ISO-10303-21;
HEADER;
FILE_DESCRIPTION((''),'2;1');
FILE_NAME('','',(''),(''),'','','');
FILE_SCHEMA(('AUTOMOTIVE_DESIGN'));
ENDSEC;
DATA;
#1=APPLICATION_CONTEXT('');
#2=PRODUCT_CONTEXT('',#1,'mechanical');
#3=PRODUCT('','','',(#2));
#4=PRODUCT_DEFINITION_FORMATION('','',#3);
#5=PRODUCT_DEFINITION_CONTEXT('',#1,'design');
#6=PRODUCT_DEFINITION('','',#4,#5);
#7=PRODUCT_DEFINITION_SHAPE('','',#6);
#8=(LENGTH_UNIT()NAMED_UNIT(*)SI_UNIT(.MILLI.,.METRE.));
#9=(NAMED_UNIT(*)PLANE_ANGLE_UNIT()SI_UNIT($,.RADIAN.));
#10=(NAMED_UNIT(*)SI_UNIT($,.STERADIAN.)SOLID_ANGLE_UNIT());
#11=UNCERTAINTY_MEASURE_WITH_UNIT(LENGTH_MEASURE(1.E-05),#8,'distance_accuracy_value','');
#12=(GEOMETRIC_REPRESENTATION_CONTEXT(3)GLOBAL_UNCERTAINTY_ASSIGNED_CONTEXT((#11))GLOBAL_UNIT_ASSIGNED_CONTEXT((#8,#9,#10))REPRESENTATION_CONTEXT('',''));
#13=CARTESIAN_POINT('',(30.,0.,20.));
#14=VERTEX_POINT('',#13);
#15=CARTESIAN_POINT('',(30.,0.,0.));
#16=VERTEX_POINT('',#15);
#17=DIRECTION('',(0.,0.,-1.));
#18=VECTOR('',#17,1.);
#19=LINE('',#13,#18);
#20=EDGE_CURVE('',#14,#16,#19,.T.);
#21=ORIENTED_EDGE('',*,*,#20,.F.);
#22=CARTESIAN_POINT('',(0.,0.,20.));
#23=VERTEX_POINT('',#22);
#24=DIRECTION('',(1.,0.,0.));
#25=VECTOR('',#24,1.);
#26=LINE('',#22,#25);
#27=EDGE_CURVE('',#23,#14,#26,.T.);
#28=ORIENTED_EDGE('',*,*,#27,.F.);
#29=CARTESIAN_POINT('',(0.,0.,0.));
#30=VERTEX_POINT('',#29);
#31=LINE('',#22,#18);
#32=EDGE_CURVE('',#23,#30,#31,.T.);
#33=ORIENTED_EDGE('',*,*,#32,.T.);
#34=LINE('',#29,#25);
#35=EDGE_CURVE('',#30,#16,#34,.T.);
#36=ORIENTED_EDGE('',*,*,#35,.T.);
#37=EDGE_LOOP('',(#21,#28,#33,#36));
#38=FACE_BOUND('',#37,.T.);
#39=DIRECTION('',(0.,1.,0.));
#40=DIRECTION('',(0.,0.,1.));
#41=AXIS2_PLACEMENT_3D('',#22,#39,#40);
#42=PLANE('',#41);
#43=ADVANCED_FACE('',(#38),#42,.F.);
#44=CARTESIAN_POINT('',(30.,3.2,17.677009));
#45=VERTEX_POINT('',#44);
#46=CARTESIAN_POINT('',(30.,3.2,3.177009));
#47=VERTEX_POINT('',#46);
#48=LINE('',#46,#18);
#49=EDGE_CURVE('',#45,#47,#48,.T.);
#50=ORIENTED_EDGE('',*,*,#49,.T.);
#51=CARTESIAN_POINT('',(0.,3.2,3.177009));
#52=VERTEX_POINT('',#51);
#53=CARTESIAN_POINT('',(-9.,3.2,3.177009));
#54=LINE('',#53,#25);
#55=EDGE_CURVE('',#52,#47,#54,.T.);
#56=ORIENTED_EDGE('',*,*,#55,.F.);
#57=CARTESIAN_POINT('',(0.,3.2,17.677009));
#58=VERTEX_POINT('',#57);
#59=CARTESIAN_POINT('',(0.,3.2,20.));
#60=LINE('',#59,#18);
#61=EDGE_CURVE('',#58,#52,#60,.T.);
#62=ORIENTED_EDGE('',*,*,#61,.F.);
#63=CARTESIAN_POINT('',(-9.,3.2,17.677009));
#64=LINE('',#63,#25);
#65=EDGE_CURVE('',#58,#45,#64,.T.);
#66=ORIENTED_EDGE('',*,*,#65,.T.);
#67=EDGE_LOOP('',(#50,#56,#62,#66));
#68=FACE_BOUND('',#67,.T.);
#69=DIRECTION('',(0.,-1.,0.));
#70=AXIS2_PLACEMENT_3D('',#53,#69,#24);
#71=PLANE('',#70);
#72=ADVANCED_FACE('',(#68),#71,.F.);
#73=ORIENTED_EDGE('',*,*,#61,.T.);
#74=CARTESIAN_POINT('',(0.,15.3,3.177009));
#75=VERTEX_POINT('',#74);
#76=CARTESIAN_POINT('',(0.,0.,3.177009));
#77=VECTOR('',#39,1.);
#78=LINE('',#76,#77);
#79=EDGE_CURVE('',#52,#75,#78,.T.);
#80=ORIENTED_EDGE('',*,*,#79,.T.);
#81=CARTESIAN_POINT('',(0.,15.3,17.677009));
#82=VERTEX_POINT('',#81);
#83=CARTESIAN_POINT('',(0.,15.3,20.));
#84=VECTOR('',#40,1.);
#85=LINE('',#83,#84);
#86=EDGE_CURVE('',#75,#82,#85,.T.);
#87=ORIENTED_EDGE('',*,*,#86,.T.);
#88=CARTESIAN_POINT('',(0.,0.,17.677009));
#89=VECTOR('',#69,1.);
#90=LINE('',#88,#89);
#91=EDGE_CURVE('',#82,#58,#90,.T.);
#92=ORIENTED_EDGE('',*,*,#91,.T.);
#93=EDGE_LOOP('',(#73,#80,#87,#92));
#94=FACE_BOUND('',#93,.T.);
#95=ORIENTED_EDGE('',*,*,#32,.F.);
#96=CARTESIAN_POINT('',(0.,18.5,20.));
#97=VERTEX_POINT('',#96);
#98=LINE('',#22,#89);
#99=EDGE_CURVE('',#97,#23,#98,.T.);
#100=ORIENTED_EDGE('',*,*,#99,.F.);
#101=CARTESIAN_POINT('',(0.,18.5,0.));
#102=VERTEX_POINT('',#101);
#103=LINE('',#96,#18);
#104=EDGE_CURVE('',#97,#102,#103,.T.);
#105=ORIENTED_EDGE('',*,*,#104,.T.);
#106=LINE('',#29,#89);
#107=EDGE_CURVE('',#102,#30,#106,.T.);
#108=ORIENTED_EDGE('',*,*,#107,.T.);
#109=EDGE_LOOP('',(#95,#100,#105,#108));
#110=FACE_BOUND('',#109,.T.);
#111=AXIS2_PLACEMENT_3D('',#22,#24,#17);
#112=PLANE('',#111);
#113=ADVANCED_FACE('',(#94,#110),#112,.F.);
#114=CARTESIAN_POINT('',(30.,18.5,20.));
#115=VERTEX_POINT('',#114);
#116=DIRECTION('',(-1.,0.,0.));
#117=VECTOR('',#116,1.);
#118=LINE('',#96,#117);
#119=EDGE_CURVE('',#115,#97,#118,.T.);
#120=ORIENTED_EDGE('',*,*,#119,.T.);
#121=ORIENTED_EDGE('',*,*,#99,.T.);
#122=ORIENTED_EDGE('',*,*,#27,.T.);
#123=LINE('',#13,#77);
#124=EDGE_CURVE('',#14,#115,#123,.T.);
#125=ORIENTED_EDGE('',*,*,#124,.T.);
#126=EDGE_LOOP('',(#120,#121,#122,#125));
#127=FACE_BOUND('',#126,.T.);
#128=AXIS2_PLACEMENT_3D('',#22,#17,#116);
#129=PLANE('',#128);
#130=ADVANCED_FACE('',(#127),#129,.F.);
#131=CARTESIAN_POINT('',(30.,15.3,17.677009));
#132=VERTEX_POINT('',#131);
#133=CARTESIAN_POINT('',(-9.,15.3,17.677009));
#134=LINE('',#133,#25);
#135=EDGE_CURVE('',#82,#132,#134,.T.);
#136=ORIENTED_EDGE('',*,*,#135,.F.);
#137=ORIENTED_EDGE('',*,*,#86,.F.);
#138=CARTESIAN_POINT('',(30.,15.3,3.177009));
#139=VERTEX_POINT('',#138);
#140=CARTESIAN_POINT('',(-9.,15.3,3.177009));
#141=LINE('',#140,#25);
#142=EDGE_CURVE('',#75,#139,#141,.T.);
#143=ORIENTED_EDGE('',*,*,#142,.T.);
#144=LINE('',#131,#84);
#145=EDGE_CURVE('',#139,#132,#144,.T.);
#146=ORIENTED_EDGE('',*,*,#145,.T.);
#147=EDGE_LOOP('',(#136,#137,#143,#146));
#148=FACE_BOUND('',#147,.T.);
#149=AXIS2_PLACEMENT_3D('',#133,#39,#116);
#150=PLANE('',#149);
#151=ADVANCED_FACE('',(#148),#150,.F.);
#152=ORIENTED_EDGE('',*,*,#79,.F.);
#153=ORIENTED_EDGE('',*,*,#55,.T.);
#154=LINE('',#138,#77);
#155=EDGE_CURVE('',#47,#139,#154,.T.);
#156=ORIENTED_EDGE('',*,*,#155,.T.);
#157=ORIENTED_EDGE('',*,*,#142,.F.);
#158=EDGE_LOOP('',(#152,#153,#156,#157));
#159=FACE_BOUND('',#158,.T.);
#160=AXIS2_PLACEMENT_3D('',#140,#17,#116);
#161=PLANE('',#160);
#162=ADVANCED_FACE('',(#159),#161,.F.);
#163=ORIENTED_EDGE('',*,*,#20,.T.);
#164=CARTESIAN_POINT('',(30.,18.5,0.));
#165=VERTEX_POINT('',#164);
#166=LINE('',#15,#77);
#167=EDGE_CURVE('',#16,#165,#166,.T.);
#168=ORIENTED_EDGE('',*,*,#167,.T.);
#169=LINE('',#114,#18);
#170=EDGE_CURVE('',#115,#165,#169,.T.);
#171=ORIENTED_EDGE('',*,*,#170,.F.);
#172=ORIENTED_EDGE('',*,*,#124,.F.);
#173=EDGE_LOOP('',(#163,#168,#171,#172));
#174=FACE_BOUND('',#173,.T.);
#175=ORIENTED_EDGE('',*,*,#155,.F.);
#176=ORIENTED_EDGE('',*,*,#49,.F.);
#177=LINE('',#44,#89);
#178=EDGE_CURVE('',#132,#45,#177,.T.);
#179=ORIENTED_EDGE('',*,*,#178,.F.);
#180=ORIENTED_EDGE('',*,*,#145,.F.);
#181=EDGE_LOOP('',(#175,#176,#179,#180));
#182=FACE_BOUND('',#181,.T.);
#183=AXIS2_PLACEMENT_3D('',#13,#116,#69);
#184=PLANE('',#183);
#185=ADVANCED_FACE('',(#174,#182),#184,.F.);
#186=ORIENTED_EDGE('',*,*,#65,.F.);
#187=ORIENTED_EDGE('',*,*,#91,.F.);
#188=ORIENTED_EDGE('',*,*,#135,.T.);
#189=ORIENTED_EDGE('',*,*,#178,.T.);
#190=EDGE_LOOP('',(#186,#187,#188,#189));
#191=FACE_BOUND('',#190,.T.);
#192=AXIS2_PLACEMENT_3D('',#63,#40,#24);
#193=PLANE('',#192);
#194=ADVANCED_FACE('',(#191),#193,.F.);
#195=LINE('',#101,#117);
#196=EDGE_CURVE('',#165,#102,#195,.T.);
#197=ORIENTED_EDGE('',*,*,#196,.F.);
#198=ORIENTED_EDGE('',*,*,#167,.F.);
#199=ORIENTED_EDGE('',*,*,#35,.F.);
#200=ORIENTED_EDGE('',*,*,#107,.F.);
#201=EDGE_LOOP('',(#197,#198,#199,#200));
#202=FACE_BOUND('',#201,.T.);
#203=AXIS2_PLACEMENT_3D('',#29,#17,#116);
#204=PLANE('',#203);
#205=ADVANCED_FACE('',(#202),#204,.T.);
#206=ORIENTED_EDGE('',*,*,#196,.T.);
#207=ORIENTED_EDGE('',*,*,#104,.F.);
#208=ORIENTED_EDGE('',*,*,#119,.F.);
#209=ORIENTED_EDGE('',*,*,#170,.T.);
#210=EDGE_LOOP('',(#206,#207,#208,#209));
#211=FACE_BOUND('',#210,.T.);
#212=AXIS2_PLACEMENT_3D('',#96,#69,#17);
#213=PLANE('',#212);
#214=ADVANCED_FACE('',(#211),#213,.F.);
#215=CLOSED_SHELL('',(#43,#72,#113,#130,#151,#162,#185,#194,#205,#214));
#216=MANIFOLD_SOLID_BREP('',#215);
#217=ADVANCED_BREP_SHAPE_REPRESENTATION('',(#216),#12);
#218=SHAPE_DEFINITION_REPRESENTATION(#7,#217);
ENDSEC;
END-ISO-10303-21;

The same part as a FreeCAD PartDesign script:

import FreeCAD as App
import Part
import Sketcher

V = App.Vector

doc = App.newDocument("Part")
params = doc.addObject("Spreadsheet::Sheet", "Params")
for row, (alias, value) in enumerate([
    ("sketch1_width", "30 mm"),
    ("sketch1_height", "18.5 mm"),
    ("pad1_length", "20 mm"),
    ("sketch2_width", "12.1 mm"),
    ("sketch2_height", "14.5 mm"),
    ("pocket1_length", "39 mm"),
], start=1):
    params.set(f"A{row}", alias)
    params.set(f"B{row}", "=" + value)
    params.setAlias(f"B{row}", alias)

body = doc.addObject("PartDesign::Body", "Body")

sketch1 = doc.addObject("Sketcher::SketchObject", "Sketch")
body.addObject(sketch1)
sketch1.AttachmentSupport = (doc.XY_Plane, [""])
sketch1.MapMode = "FlatFace"
sketch1.addGeometry(Part.LineSegment(V(0, 18.5, 0), V(0, 0, 0)), False)
sketch1.addGeometry(Part.LineSegment(V(0, 0, 0), V(30, 0, 0)), False)
sketch1.addGeometry(Part.LineSegment(V(30, 0, 0), V(30, 18.5, 0)), False)
sketch1.addGeometry(Part.LineSegment(V(30, 18.5, 0), V(0, 18.5, 0)), False)
sketch1.addConstraint(Sketcher.Constraint("Coincident", 0, 2, 1, 1))
sketch1.addConstraint(Sketcher.Constraint("Coincident", 1, 2, 2, 1))
sketch1.addConstraint(Sketcher.Constraint("Coincident", 2, 2, 3, 1))
sketch1.addConstraint(Sketcher.Constraint("Coincident", 3, 2, 0, 1))
sketch1.addConstraint(Sketcher.Constraint("Vertical", 0))
sketch1.addConstraint(Sketcher.Constraint("Horizontal", 1))
sketch1.addConstraint(Sketcher.Constraint("Vertical", 2))
sketch1.addConstraint(Sketcher.Constraint("Horizontal", 3))
sketch1.addConstraint(Sketcher.Constraint("Coincident", 0, 2, -1, 1))
sketch1.addConstraint(Sketcher.Constraint("DistanceX", 1, 1, 1, 2, 30.0))
sketch1.addConstraint(Sketcher.Constraint("DistanceY", 0, 2, 0, 1, 18.5))
sketch1.setExpression("Constraints[9]", "Params.sketch1_width")
sketch1.setExpression("Constraints[10]", "Params.sketch1_height")
pad1 = doc.addObject("PartDesign::Pad", "Pad")
body.addObject(pad1)
pad1.Profile = sketch1
pad1.setExpression("Length", "Params.pad1_length")

sketch2 = doc.addObject("Sketcher::SketchObject", "Sketch001")
body.addObject(sketch2)
sketch2.AttachmentSupport = (doc.YZ_Plane, [""])
sketch2.MapMode = "FlatFace"
sketch2.AttachmentOffset = App.Placement(V(0, 0, 30), App.Rotation())
sketch2.addGeometry(Part.LineSegment(V(15.3, 17.677009, 0), V(3.2, 17.677009, 0)), False)
sketch2.addGeometry(Part.LineSegment(V(3.2, 17.677009, 0), V(3.2, 3.177009, 0)), False)
sketch2.addGeometry(Part.LineSegment(V(3.2, 3.177009, 0), V(15.3, 3.177009, 0)), False)
sketch2.addGeometry(Part.LineSegment(V(15.3, 3.177009, 0), V(15.3, 17.677009, 0)), False)
sketch2.addConstraint(Sketcher.Constraint("Coincident", 0, 2, 1, 1))
sketch2.addConstraint(Sketcher.Constraint("Coincident", 1, 2, 2, 1))
sketch2.addConstraint(Sketcher.Constraint("Coincident", 2, 2, 3, 1))
sketch2.addConstraint(Sketcher.Constraint("Coincident", 3, 2, 0, 1))
sketch2.addConstraint(Sketcher.Constraint("Horizontal", 0))
sketch2.addConstraint(Sketcher.Constraint("Vertical", 1))
sketch2.addConstraint(Sketcher.Constraint("Horizontal", 2))
sketch2.addConstraint(Sketcher.Constraint("Vertical", 3))
sketch2.addConstraint(Sketcher.Constraint("DistanceX", 0, 2, 0, 1, 12.1))
sketch2.addConstraint(Sketcher.Constraint("DistanceY", 1, 2, 1, 1, 14.5))
sketch2.addConstraint(Sketcher.Constraint("DistanceX", -1, 1, 0, 2, 3.2))
sketch2.addConstraint(Sketcher.Constraint("DistanceY", -1, 1, 0, 2, 17.677009))
sketch2.setExpression("Constraints[8]", "Params.sketch2_width")
sketch2.setExpression("Constraints[9]", "Params.sketch2_height")
pocket1 = doc.addObject("PartDesign::Pocket", "Pocket")
body.addObject(pocket1)
pocket1.Profile = sketch2
pocket1.setExpression("Length", "Params.pocket1_length")

doc.recompute()
